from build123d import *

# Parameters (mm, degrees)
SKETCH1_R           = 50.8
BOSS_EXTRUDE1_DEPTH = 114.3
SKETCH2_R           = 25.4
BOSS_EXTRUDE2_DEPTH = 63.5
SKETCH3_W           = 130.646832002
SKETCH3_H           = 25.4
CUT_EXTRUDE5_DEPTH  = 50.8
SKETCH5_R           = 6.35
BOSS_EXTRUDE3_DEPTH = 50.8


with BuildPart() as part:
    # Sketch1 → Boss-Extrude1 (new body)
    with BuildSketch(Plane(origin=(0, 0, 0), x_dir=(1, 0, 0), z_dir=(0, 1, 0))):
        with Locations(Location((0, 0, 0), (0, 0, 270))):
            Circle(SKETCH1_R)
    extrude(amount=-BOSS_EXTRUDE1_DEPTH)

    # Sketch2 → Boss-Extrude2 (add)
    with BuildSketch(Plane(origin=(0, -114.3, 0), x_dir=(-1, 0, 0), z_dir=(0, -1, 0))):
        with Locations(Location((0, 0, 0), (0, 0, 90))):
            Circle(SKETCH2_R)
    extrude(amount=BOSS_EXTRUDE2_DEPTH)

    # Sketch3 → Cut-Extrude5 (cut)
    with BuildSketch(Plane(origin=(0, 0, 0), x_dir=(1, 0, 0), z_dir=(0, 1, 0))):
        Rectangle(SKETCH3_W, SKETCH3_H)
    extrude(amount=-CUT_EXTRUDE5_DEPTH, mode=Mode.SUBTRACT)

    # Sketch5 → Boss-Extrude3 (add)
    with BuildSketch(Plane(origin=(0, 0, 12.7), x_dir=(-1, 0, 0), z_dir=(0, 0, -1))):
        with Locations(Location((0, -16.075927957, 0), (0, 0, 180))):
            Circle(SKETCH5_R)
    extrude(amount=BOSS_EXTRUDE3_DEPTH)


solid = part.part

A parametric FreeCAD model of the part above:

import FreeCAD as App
import Part
import Sketcher

V = App.Vector
Q = App.Units.Quantity


def add_polygon(sketch, points):
    """Adds a closed chain of lines whose ends are joined by coincident constraints."""
    first, n = sketch.GeometryCount, len(points)
    for a, b in zip(points, points[1:] + points[:1]):
        sketch.addGeometry(Part.LineSegment(App.Vector(*a, 0), App.Vector(*b, 0)), False)
    for i in range(n):
        sketch.addConstraint(Sketcher.Constraint("Coincident", first + i, 2, first + (i + 1) % n, 1))

doc = App.newDocument("Part")
body = doc.addObject("PartDesign::Body", "Body")

sketch1 = doc.addObject("Sketcher::SketchObject", "Sketch")
body.addObject(sketch1)
sketch1.AttachmentSupport = (doc.XZ_Plane, [""])
sketch1.MapMode = "FlatFace"
sketch1.addGeometry(Part.Circle(V(0, 0, 0), V(0, 0, 1), 51), False)
sketch1.addConstraint([
    Sketcher.Constraint("Coincident", 0, 3, -1, 1),
    Sketcher.Constraint("Diameter", 0, Q("4 in")),
])
pad1 = doc.addObject("PartDesign::Pad", "Pad")
body.addObject(pad1)
pad1.Profile = sketch1
pad1.Length = Q("4.5 in")

sketch2 = doc.addObject("Sketcher::SketchObject", "Sketch001")
body.addObject(sketch2)
sketch2.AttachmentSupport = (doc.XZ_Plane, [""])
sketch2.MapMode = "FlatFace"
sketch2.AttachmentOffset = App.Placement(V(0, 0, 4.5 * 25.4), App.Rotation())
sketch2.addGeometry(Part.Circle(V(0, 0, 0), V(0, 0, 1), 25), False)
sketch2.addConstraint([
    Sketcher.Constraint("Coincident", 0, 3, -1, 1),
    Sketcher.Constraint("Diameter", 0, Q("2 in")),
])
pad2 = doc.addObject("PartDesign::Pad", "Pad001")
body.addObject(pad2)
pad2.Profile = sketch2
pad2.Length = Q("2.5 in")

sketch3 = doc.addObject("Sketcher::SketchObject", "Sketch002")
body.addObject(sketch3)
sketch3.AttachmentSupport = (doc.XZ_Plane, [""])
sketch3.MapMode = "FlatFace"
add_polygon(sketch3, [(-65, -13), (-65, 13), (65, 13), (65, -13)])
sketch3.addConstraint([
    Sketcher.Constraint("Vertical", 0),
    Sketcher.Constraint("Horizontal", 1),
    Sketcher.Constraint("Vertical", 2),
    Sketcher.Constraint("Horizontal", 3),
    Sketcher.Constraint("Symmetric", 0, 2, 2, 2, -1, 1),
    Sketcher.Constraint("DistanceY", 0, 1, 0, 2, Q("1 in")),
    Sketcher.Constraint("DistanceX", 1, 1, 1, 2, 130.646832),
])
pocket1 = doc.addObject("PartDesign::Pocket", "Pocket")
body.addObject(pocket1)
pocket1.Profile = sketch3
pocket1.Length = Q("2 in")
pocket1.Reversed = True

sketch4 = doc.addObject("Sketcher::SketchObject", "Sketch003")
body.addObject(sketch4)
sketch4.AttachmentSupport = (doc.XY_Plane, [""])
sketch4.MapMode = "FlatFace"
sketch4.AttachmentOffset = App.Placement(V(0, 0, 0.5 * 25.4), App.Rotation())
sketch4.addGeometry(Part.Circle(V(0, -16, 0), V(0, 0, 1), 6), False)
sketch4.addConstraint([
    Sketcher.Constraint("PointOnObject", 0, 3, -2),
    Sketcher.Constraint("Diameter", 0, Q("0.5 in")),
    Sketcher.Constraint("DistanceY", 0, 3, -1, 1, 16.075928),
])
pad3 = doc.addObject("PartDesign::Pad", "Pad002")
body.addObject(pad3)
pad3.Profile = sketch4
pad3.Length = Q("2 in")
pad3.Reversed = True

doc.recompute()
